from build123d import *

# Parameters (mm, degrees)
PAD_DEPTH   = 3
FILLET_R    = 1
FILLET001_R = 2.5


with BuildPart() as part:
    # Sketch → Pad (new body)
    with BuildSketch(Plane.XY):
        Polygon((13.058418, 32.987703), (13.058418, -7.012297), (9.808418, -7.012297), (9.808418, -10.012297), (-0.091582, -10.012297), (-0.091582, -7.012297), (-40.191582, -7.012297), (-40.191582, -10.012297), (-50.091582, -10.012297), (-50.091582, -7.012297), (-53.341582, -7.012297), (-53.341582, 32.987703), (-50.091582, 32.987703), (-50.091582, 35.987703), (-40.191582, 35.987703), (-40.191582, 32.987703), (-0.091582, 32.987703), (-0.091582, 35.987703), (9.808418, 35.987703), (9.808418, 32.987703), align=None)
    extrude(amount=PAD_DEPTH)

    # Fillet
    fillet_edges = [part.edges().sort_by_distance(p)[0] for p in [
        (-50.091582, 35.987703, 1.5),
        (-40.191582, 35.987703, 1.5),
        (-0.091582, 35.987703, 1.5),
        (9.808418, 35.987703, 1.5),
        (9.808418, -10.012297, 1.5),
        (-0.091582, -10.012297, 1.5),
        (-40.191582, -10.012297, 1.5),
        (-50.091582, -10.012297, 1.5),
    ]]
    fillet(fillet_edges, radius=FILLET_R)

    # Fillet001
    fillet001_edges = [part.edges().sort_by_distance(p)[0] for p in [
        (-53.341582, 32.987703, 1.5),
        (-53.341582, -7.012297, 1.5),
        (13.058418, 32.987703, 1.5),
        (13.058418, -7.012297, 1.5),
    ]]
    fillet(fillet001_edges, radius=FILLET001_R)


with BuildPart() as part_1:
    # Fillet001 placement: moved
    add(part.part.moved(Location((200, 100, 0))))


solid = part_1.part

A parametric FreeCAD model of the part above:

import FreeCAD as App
import Part
import Sketcher


def edges_at(feature, points):
    """Names of the edges that pass closest to the given points."""
    edges = feature.Shape.Edges
    near = lambda p: min(range(len(edges)), key=lambda i: edges[i].distToShape(Part.Vertex(*p))[0])
    return sorted({f"Edge{near(p) + 1}" for p in points})

doc = App.newDocument("Part")
body = doc.addObject("PartDesign::Body", "Body")

# Sketch on XY plane
sketch1 = body.newObject("Sketcher::SketchObject", "Sketch")
sketch1.AttachmentSupport = (doc.getObject("XY_Plane"), [""])
sketch1.MapMode = "FlatFace"
sketch1.addGeometry([
    Part.LineSegment(App.Vector(13.058418, -7.012297, 0), App.Vector(13.058418, 32.987703, 0)),  # 0
    Part.LineSegment(App.Vector(13.058418, 32.987703, 0), App.Vector(9.808418, 32.987703, 0)),  # 1
    Part.LineSegment(App.Vector(9.808418, 32.987703, 0), App.Vector(9.808418, 35.987703, 0)),  # 2
    Part.LineSegment(App.Vector(9.808418, 35.987703, 0), App.Vector(-0.091582, 35.987703, 0)),  # 3
    Part.LineSegment(App.Vector(-0.091582, 35.987703, 0), App.Vector(-0.091582, 32.987703, 0)),  # 4
    Part.LineSegment(App.Vector(-0.091582, 32.987703, 0), App.Vector(-40.191582, 32.987703, 0)),  # 5
    Part.LineSegment(App.Vector(-40.191582, 32.987703, 0), App.Vector(-40.191582, 35.987703, 0)),  # 6
    Part.LineSegment(App.Vector(-40.191582, 35.987703, 0), App.Vector(-50.091582, 35.987703, 0)),  # 7
    Part.LineSegment(App.Vector(-50.091582, 35.987703, 0), App.Vector(-50.091582, 32.987703, 0)),  # 8
    Part.LineSegment(App.Vector(-50.091582, 32.987703, 0), App.Vector(-53.341582, 32.987703, 0)),  # 9
    Part.LineSegment(App.Vector(-53.341582, 32.987703, 0), App.Vector(-53.341582, -7.012297, 0)),  # 10
    Part.LineSegment(App.Vector(-53.341582, -7.012297, 0), App.Vector(-50.091582, -7.012297, 0)),  # 11
    Part.LineSegment(App.Vector(-50.091582, -7.012297, 0), App.Vector(-50.091582, -10.012297, 0)),  # 12
    Part.LineSegment(App.Vector(-50.091582, -10.012297, 0), App.Vector(-40.191582, -10.012297, 0)),  # 13
    Part.LineSegment(App.Vector(-40.191582, -10.012297, 0), App.Vector(-40.191582, -7.012297, 0)),  # 14
    Part.LineSegment(App.Vector(-40.191582, -7.012297, 0), App.Vector(-0.091582, -7.012297, 0)),  # 15
    Part.LineSegment(App.Vector(-0.091582, -7.012297, 0), App.Vector(-0.091582, -10.012297, 0)),  # 16
    Part.LineSegment(App.Vector(-0.091582, -10.012297, 0), App.Vector(9.808418, -10.012297, 0)),  # 17
    Part.LineSegment(App.Vector(9.808418, -10.012297, 0), App.Vector(9.808418, -7.012297, 0)),  # 18
    Part.LineSegment(App.Vector(9.808418, -7.012297, 0), App.Vector(13.058418, -7.012297, 0)),  # 19
], False)
sketch1.addConstraint([
    Sketcher.Constraint("Coincident", 0, 2, 1, 1),
    Sketcher.Constraint("Coincident", 1, 2, 2, 1),
    Sketcher.Constraint("Coincident", 2, 2, 3, 1),
    Sketcher.Constraint("Coincident", 3, 2, 4, 1),
    Sketcher.Constraint("Coincident", 4, 2, 5, 1),
    Sketcher.Constraint("Coincident", 5, 2, 6, 1),
    Sketcher.Constraint("Coincident", 6, 2, 7, 1),
    Sketcher.Constraint("Coincident", 7, 2, 8, 1),
    Sketcher.Constraint("Coincident", 8, 2, 9, 1),
    Sketcher.Constraint("Coincident", 9, 2, 10, 1),
    Sketcher.Constraint("Coincident", 10, 2, 11, 1),
    Sketcher.Constraint("Coincident", 11, 2, 12, 1),
    Sketcher.Constraint("Coincident", 12, 2, 13, 1),
    Sketcher.Constraint("Coincident", 13, 2, 14, 1),
    Sketcher.Constraint("Coincident", 14, 2, 15, 1),
    Sketcher.Constraint("Coincident", 15, 2, 16, 1),
    Sketcher.Constraint("Coincident", 16, 2, 17, 1),
    Sketcher.Constraint("Coincident", 17, 2, 18, 1),
    Sketcher.Constraint("Coincident", 18, 2, 19, 1),
    Sketcher.Constraint("Coincident", 19, 2, 0, 1),
    Sketcher.Constraint("Vertical", 0),
    Sketcher.Constraint("Horizontal", 1),
    Sketcher.Constraint("Vertical", 2),
    Sketcher.Constraint("Horizontal", 3),
    Sketcher.Constraint("Vertical", 4),
    Sketcher.Constraint("Horizontal", 5),
    Sketcher.Constraint("Vertical", 6),
    Sketcher.Constraint("Horizontal", 7),
    Sketcher.Constraint("Vertical", 8),
    Sketcher.Constraint("Horizontal", 9),
    Sketcher.Constraint("Vertical", 10),
    Sketcher.Constraint("Horizontal", 11),
    Sketcher.Constraint("Vertical", 12),
    Sketcher.Constraint("Horizontal", 13),
    Sketcher.Constraint("Vertical", 14),
    Sketcher.Constraint("Horizontal", 15),
    Sketcher.Constraint("Vertical", 16),
    Sketcher.Constraint("Horizontal", 17),
    Sketcher.Constraint("Vertical", 18),
    Sketcher.Constraint("Horizontal", 19),
    Sketcher.Constraint("Horizontal", 1, 2, 4, 2),
    Sketcher.Constraint("Horizontal", 3, 2, 6, 2),
    Sketcher.Constraint("Horizontal", 5, 2, 8, 2),
    Sketcher.Constraint("Horizontal", 11, 2, 14, 2),
    Sketcher.Constraint("Horizontal", 13, 2, 16, 2),
    Sketcher.Constraint("Horizontal", 15, 2, 18, 2),
    Sketcher.Constraint("Vertical", 8, 2, 11, 2),
    Sketcher.Constraint("Vertical", 6, 2, 13, 2),
    Sketcher.Constraint("Vertical", 4, 2, 15, 2),
    Sketcher.Constraint("Vertical", 2, 2, 17, 2),
    Sketcher.Constraint("Equal", 3, 7),
    Sketcher.Constraint("Equal", 1, 9),
    Sketcher.Constraint("Equal", 8, 12),
    Sketcher.Constraint("DistanceY", 0, 1, 0, 2, 40.0),
    Sketcher.Constraint("DistanceY", 2, 1, 2, 2, 3.0),
    Sketcher.Constraint("DistanceX", 3, 2, 3, 1, 9.9),
    Sketcher.Constraint("DistanceX", 5, 2, 5, 1, 40.1),
    Sketcher.Constraint("DistanceX", 1, 2, 1, 1, 3.25),
    Sketcher.Constraint("DistanceX", 5, 2, -1, 1, 40.191582),
    Sketcher.Constraint("DistanceY", -1, 1, 0, 2, 32.987703),
])
pad1 = body.newObject("PartDesign::Pad", "Pad")
pad1.Profile = sketch1
pad1.Length = 3
doc.recompute()

fillet = body.newObject("PartDesign::Fillet", "Fillet")
fillet.Base = (pad1, edges_at(pad1, [
    (-50.092, 35.988, 1.5),
    (-40.192, 35.988, 1.5),
    (-0.092, 35.988, 1.5),
    (9.808, 35.988, 1.5),
    (9.808, -10.012, 1.5),
    (-0.092, -10.012, 1.5),
    (-40.192, -10.012, 1.5),
    (-50.092, -10.012, 1.5),
]))
fillet.Radius = 1
doc.recompute()

fillet2 = body.newObject("PartDesign::Fillet", "Fillet001")
fillet2.Base = (fillet, edges_at(fillet, [
    (-53.342, 32.988, 1.5),
    (-53.342, -7.012, 1.5),
    (13.058, 32.988, 1.5),
    (13.058, -7.012, 1.5),
]))
fillet2.Radius = 2.5
body2 = doc.addObject("PartDesign::Body", "Body001")
doc.recompute()

body.Placement = App.Placement(App.Vector(200, 100, 0), App.Rotation(App.Vector(0, 0, 1), 0))
boolean = body2.newObject("PartDesign::Boolean", "Boolean")
boolean.Type = "Fuse"
boolean.addObjects([body])

doc.recompute()
